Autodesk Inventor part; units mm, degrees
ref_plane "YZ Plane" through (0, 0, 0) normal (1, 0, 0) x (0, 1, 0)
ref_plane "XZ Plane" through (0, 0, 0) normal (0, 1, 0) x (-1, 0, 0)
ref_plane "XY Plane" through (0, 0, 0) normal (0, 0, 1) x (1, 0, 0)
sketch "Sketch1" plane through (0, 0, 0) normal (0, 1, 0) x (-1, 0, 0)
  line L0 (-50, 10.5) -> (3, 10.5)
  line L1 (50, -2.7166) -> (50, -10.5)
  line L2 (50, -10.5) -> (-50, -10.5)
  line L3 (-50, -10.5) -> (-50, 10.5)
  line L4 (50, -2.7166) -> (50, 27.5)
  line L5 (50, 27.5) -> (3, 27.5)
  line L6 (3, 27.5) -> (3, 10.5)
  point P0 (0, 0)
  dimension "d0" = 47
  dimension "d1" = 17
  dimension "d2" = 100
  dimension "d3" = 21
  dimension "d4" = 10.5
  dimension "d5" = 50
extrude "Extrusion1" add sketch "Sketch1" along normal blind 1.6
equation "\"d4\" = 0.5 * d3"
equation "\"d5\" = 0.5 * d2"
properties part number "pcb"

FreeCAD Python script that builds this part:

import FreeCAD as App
import Part
import Sketcher
Q = App.Units.Quantity


def add_polygon(sketch, points):
    """Adds a closed chain of lines whose ends are joined by coincident constraints."""
    first, n = sketch.GeometryCount, len(points)
    for a, b in zip(points, points[1:] + points[:1]):
        sketch.addGeometry(Part.LineSegment(App.Vector(*a, 0), App.Vector(*b, 0)), False)
    for i in range(n):
        sketch.addConstraint(Sketcher.Constraint("Coincident", first + i, 2, first + (i + 1) % n, 1))

doc = App.newDocument("Part")
body = doc.addObject("PartDesign::Body", "Body")

# Sketch on XZ plane
sketch1 = body.newObject("Sketcher::SketchObject", "Sketch")
sketch1.AttachmentSupport = (doc.getObject("XZ_Plane"), [""])
sketch1.MapMode = "FlatFace"
add_polygon(sketch1, [(-3, 10.5), (50, 10.5), (50, -10.5), (-50, -10.5), (-50, 27.5), (-3, 27.5)])  # lines 0-5
sketch1.addConstraint([
    Sketcher.Constraint("Horizontal", 0),
    Sketcher.Constraint("Vertical", 1),
    Sketcher.Constraint("Horizontal", 2),
    Sketcher.Constraint("Vertical", 3),
    Sketcher.Constraint("Horizontal", 4),
    Sketcher.Constraint("Vertical", 5),
    Sketcher.Constraint("Symmetric", 0, 2, 2, 2, -1, 1),
    Sketcher.Constraint("DistanceX", 2, 2, 2, 1, Q("100 mm")),
    Sketcher.Constraint("DistanceX", 4, 1, 4, 2, Q("47 mm")),
    Sketcher.Constraint("DistanceY", 1, 2, 1, 1, Q("21 mm")),
    Sketcher.Constraint("DistanceY", 5, 2, 5, 1, Q("17 mm")),
])
pad1 = body.newObject("PartDesign::Pad", "Pad")
pad1.Profile = sketch1
pad1.Length = 1.6
pad1.Reversed = True

doc.recompute()
